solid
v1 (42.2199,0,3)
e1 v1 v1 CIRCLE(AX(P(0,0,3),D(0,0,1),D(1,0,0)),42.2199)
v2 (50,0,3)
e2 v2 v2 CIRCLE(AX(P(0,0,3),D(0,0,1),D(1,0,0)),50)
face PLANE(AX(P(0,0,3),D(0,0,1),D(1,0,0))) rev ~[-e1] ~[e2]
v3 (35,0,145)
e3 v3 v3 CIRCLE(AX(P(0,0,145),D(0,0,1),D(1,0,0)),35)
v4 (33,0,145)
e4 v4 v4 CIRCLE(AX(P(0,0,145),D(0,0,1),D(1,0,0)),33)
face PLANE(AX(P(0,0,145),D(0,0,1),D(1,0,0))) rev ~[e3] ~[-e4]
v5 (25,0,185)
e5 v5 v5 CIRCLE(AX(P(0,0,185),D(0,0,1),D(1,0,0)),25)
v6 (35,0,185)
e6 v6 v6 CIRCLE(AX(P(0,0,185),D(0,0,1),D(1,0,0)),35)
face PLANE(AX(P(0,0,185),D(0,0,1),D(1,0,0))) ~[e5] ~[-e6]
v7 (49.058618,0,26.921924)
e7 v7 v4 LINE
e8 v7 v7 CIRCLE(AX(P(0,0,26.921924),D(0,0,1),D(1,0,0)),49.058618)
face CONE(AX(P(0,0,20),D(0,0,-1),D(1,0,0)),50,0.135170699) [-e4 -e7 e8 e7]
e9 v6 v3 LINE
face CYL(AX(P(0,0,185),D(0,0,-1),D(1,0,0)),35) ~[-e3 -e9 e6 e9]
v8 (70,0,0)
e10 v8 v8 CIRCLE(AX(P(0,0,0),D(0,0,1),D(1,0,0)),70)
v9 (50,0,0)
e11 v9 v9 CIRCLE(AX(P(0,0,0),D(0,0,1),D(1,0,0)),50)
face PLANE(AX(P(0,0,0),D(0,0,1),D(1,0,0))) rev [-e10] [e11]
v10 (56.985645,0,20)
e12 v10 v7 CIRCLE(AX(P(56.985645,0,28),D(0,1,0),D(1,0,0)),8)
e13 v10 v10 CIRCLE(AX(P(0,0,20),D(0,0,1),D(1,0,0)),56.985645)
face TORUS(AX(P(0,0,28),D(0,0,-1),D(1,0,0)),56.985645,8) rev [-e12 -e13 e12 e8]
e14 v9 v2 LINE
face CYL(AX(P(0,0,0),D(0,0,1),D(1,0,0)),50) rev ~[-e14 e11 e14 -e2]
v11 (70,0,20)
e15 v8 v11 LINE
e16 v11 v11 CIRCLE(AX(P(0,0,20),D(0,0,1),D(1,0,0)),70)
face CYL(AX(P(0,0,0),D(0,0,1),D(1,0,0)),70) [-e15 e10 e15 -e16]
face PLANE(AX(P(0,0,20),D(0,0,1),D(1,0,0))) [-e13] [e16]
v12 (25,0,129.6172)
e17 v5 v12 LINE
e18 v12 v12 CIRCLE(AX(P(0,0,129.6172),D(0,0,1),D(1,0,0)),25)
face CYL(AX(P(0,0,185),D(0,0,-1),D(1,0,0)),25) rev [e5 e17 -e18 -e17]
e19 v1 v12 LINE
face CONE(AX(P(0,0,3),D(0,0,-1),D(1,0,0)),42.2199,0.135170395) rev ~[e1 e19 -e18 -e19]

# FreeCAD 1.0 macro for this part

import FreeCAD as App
import Part
import Sketcher

V = App.Vector


def edges_at(feature, points):
    """Names of the edges that pass closest to the given points."""
    edges = feature.Shape.Edges
    near = lambda p: min(range(len(edges)), key=lambda i: edges[i].distToShape(Part.Vertex(*p))[0])
    return sorted({f"Edge{near(p) + 1}" for p in points})


def add_polygon(sketch, points):
    """Adds a closed chain of lines whose ends are joined by coincident constraints."""
    first, n = sketch.GeometryCount, len(points)
    for a, b in zip(points, points[1:] + points[:1]):
        sketch.addGeometry(Part.LineSegment(App.Vector(*a, 0), App.Vector(*b, 0)), False)
    for i in range(n):
        sketch.addConstraint(Sketcher.Constraint("Coincident", first + i, 2, first + (i + 1) % n, 1))

doc = App.newDocument("Part")
params = doc.addObject("Spreadsheet::Sheet", "Params")
for row, (alias, value) in enumerate([
    ("sketch1_width", "10 mm"),
    ("sketch1_width2", "20 mm"),
    ("sketch1_width3", "2 mm"),
    ("sketch1_height", "3 mm"),
    ("sketch1_height2", "40 mm"),
    ("revolution_angle", "360 deg"),
    ("fillet_radius", "8 mm"),
], start=1):
    params.set(f"A{row}", alias)
    params.set(f"B{row}", "=" + value)
    params.setAlias(f"B{row}", alias)

body = doc.addObject("PartDesign::Body", "Body")

sketch1 = doc.addObject("Sketcher::SketchObject", "Sketch")
body.addObject(sketch1)
sketch1.AttachmentSupport = (doc.XZ_Plane, [""])
sketch1.MapMode = "FlatFace"
add_polygon(sketch1, [(35, 185), (25, 185), (25, 129.6172), (42.2199, 3), (50, 3), (50, 0), (70, 0), (70, 20), (50, 20), (33, 145), (35, 145)])
sketch1.addConstraint([
    Sketcher.Constraint("Horizontal", 0),
    Sketcher.Constraint("Vertical", 1),
    Sketcher.Constraint("Horizontal", 3),
    Sketcher.Constraint("Vertical", 4),
    Sketcher.Constraint("Horizontal", 5),
    Sketcher.Constraint("Vertical", 6),
    Sketcher.Constraint("Horizontal", 7),
    Sketcher.Constraint("Horizontal", 9),
    Sketcher.Constraint("Vertical", 10),
    Sketcher.Constraint("PointOnObject", 4, 2, -1),
    Sketcher.Constraint("Parallel", 2, 8),
    Sketcher.Constraint("Vertical", 4, 2, 7, 2),
    Sketcher.Constraint("Equal", 7, 6),
    Sketcher.Constraint("DistanceX", 0, 2, 0, 1, 10.0),
    Sketcher.Constraint("DistanceX", 5, 1, 5, 2, 20.0),
    Sketcher.Constraint("DistanceX", 9, 1, 9, 2, 2.0),
    Sketcher.Constraint("DistanceY", 4, 2, 4, 1, 3.0),
    Sketcher.Constraint("DistanceY", 10, 1, 10, 2, 40.0),
    Sketcher.Constraint("DistanceX", -1, 1, 0, 2, 25.0),
    Sketcher.Constraint("DistanceY", -1, 1, 0, 2, 185.0),
    Sketcher.Constraint("DistanceX", -1, 1, 3, 2, 50.0),
    Sketcher.Constraint("DistanceX", 3, 1, 3, 2, 7.78),
])
sketch1.setExpression("Constraints[24]", "Params.sketch1_width")
sketch1.setExpression("Constraints[25]", "Params.sketch1_width2")
sketch1.setExpression("Constraints[26]", "Params.sketch1_width3")
sketch1.setExpression("Constraints[27]", "Params.sketch1_height")
sketch1.setExpression("Constraints[28]", "Params.sketch1_height2")
revolution = doc.addObject("PartDesign::Revolution", "Revolution")
body.addObject(revolution)
revolution.Profile = sketch1
revolution.ReferenceAxis = (sketch1, ["V_Axis"])
revolution.setExpression("Angle", "Params.revolution_angle")
doc.recompute()

fillet = doc.addObject("PartDesign::Fillet", "Fillet")
body.addObject(fillet)
fillet.Base = (revolution, edges_at(revolution, [(-50, 0, 20)]))
fillet.setExpression("Radius", "Params.fillet_radius")

doc.recompute()
